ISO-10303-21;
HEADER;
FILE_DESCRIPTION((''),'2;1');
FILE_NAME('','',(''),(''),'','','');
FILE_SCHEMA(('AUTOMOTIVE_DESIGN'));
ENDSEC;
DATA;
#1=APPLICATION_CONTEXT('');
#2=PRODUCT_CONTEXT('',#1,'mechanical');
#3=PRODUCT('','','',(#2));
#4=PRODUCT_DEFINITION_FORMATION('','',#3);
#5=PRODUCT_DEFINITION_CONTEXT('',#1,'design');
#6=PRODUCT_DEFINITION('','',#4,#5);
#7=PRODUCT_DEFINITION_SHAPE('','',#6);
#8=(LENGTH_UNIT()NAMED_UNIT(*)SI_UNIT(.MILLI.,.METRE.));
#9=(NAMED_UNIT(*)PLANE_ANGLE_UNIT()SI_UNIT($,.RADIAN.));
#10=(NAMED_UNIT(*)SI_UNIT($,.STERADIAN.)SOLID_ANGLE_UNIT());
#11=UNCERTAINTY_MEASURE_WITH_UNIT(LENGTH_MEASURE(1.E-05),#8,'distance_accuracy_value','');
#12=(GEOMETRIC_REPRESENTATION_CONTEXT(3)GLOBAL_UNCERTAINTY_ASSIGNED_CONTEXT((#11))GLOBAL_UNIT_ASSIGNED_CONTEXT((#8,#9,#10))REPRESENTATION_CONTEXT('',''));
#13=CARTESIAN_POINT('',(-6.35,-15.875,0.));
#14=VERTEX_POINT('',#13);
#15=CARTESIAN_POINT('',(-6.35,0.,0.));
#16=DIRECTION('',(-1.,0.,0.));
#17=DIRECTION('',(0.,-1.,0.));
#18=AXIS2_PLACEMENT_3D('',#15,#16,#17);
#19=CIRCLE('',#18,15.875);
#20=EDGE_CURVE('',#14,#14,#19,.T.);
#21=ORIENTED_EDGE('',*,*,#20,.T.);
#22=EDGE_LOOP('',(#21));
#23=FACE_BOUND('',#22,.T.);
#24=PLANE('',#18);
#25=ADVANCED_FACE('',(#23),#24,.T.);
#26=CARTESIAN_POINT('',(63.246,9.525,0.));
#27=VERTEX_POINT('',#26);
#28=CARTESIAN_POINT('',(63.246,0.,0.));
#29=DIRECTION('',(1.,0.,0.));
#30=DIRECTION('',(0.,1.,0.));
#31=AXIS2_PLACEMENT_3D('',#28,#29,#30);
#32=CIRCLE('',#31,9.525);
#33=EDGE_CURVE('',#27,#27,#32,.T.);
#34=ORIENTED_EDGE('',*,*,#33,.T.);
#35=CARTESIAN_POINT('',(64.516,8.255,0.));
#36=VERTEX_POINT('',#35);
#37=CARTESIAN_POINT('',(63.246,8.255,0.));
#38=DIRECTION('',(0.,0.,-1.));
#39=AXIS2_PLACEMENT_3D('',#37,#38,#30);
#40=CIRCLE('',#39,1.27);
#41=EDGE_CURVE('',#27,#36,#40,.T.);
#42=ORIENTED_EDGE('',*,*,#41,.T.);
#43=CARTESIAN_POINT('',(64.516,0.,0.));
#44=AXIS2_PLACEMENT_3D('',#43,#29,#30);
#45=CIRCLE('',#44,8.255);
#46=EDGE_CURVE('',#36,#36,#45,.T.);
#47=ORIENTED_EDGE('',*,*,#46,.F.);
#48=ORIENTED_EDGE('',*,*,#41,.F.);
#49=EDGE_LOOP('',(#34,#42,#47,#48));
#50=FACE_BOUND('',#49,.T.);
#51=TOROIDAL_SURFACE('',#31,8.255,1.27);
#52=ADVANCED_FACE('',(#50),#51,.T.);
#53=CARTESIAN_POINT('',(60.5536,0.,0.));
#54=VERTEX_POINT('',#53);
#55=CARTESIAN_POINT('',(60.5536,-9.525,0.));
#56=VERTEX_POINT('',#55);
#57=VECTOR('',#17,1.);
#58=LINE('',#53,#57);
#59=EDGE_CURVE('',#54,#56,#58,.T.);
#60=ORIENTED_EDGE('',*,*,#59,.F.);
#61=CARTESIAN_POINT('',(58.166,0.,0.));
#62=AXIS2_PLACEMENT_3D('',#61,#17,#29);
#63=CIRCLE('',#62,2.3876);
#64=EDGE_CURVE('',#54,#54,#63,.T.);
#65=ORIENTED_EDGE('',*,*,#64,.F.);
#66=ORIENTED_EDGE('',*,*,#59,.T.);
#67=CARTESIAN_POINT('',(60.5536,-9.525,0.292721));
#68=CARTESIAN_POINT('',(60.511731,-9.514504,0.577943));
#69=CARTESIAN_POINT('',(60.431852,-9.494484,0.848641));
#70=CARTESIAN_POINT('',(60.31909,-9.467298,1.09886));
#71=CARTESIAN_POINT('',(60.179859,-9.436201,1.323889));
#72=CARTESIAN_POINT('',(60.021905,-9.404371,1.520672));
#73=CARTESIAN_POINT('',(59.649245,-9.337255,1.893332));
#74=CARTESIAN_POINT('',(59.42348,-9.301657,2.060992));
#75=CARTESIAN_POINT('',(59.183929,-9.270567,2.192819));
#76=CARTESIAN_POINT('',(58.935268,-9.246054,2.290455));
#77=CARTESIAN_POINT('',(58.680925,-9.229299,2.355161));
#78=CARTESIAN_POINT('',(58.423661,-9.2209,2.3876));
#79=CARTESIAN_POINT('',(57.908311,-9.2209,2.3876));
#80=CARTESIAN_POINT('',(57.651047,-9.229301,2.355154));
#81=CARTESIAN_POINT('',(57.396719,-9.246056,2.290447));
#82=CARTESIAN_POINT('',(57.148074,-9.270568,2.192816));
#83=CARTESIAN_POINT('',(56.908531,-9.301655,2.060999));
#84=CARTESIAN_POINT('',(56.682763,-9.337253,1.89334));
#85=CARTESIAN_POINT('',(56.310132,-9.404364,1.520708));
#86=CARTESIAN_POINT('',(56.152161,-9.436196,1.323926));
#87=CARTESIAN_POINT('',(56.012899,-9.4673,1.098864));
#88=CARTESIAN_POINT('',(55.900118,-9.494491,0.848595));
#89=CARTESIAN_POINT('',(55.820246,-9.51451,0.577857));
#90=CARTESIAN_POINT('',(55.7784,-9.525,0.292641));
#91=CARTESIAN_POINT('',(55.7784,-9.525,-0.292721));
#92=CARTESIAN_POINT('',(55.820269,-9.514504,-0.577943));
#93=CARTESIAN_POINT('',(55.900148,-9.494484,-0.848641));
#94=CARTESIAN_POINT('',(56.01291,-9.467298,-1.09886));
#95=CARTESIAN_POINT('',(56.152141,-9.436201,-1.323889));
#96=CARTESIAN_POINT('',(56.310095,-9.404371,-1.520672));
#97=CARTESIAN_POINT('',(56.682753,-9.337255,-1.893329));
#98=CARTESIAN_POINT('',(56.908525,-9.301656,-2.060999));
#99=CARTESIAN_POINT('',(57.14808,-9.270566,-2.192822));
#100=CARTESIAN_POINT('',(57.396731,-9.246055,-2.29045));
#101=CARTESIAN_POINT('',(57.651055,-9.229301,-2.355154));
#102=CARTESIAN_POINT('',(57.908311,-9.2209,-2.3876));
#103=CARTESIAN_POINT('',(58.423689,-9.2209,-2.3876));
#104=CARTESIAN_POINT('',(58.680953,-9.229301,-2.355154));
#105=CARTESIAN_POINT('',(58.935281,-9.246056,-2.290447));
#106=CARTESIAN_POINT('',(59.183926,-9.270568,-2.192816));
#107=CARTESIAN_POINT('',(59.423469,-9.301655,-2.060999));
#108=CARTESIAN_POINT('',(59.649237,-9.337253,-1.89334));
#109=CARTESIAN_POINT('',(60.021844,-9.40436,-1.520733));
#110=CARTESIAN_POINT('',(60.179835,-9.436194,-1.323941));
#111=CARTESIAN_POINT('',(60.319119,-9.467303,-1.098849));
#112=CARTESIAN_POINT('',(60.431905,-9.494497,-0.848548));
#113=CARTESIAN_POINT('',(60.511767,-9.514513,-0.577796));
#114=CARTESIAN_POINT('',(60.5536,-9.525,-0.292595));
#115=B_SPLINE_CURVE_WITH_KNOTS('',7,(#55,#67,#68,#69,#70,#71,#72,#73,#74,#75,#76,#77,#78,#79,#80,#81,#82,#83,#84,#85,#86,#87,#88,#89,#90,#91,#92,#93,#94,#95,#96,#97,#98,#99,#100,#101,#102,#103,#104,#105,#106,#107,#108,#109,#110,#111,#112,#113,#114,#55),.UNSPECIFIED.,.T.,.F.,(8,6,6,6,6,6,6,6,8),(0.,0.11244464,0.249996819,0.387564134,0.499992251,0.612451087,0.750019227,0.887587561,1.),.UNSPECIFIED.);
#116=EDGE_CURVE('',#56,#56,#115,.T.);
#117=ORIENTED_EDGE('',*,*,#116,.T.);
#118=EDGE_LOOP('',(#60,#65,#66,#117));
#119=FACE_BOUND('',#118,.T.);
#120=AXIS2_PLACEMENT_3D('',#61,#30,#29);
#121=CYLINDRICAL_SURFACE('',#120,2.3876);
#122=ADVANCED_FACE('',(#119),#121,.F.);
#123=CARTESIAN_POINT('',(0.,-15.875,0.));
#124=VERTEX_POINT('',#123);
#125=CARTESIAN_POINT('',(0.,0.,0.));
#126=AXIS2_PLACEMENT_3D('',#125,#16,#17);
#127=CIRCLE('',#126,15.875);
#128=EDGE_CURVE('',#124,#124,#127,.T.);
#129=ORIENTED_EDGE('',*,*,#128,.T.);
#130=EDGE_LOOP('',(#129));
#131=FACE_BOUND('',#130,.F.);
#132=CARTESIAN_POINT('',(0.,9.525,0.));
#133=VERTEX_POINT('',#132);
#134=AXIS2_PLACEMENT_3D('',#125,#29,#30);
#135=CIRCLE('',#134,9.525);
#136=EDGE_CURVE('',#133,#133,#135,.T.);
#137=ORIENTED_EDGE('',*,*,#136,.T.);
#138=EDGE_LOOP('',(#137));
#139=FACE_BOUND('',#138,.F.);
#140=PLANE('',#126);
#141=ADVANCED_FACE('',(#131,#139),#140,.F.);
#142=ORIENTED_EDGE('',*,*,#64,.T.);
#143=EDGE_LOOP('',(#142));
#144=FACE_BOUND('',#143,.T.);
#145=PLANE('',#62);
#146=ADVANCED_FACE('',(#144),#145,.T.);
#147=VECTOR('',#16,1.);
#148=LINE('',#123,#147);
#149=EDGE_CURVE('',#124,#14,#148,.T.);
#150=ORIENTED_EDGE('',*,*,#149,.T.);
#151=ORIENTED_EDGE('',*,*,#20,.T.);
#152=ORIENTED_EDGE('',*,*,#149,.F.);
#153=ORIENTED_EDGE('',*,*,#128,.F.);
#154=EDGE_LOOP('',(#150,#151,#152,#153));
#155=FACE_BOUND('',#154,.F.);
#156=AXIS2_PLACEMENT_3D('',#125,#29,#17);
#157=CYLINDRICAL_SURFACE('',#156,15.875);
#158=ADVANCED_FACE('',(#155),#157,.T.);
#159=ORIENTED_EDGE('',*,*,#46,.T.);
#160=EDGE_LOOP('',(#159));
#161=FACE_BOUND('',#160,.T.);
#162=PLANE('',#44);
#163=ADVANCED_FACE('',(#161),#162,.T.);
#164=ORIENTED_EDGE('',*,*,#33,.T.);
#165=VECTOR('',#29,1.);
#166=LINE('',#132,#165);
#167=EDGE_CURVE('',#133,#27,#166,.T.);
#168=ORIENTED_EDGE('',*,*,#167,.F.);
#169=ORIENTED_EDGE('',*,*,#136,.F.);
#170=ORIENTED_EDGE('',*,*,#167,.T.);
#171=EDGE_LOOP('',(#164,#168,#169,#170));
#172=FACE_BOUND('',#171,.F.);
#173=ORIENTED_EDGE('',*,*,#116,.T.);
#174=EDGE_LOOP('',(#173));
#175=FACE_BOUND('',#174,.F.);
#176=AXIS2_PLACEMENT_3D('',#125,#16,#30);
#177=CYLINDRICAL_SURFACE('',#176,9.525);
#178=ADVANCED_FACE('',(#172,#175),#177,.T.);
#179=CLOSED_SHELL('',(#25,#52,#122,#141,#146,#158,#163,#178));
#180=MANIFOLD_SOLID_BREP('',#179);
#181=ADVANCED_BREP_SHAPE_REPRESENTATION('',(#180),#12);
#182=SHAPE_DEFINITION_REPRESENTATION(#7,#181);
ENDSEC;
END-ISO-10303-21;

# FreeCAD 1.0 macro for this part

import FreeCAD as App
import Part
import Sketcher
from FreeCAD import Vector
Q = App.Units.Quantity


def edges_at(feature, points):
    """Names of the edges that pass closest to the given points."""
    edges = feature.Shape.Edges
    near = lambda p: min(range(len(edges)), key=lambda i: edges[i].distToShape(Part.Vertex(*p))[0])
    return sorted({f"Edge{near(p) + 1}" for p in points})

doc = App.newDocument("Part")
body = doc.addObject("PartDesign::Body", "Body")

# Sketch on YZ plane
sketch1 = body.newObject("Sketcher::SketchObject", "Sketch")
sketch1.AttachmentSupport = (doc.getObject("YZ_Plane"), [""])
sketch1.MapMode = "FlatFace"
sketch1.addGeometry(Part.Circle(Vector(0, 0, 0), Vector(0, 0, 1), 10), False)
sketch1.addConstraint(Sketcher.Constraint("Coincident", 0, 3, -1, 1))
sketch1.addConstraint(Sketcher.Constraint("Diameter", 0, Q("0.75 in")))
pad1 = body.newObject("PartDesign::Pad", "Pad")
pad1.Profile = sketch1
pad1.Length = Q("2.54 in")

# Sketch on YZ plane
sketch2 = body.newObject("Sketcher::SketchObject", "Sketch001")
sketch2.AttachmentSupport = (doc.getObject("YZ_Plane"), [""])
sketch2.MapMode = "FlatFace"
sketch2.addGeometry(Part.Circle(Vector(0, 0, 0), Vector(0, 0, 1), 16), False)
sketch2.addConstraint(Sketcher.Constraint("Coincident", 0, 3, -1, 1))
sketch2.addConstraint(Sketcher.Constraint("Diameter", 0, Q("1.25 in")))
pad2 = body.newObject("PartDesign::Pad", "Pad001")
pad2.Profile = sketch2
pad2.Length = Q("0.25 in")
pad2.Reversed = True

# Sketch on XZ plane
sketch3 = body.newObject("Sketcher::SketchObject", "Sketch002")
sketch3.AttachmentSupport = (doc.getObject("XZ_Plane"), [""])
sketch3.MapMode = "FlatFace"
sketch3.addGeometry(Part.Circle(Vector(58.2, 0, 0), Vector(0, 0, 1), 2.4), False)
sketch3.addConstraint(Sketcher.Constraint("PointOnObject", 0, 3, -1))
sketch3.addConstraint(Sketcher.Constraint("Diameter", 0, Q("0.188 in")))
sketch3.addConstraint(Sketcher.Constraint("DistanceX", -1, 1, 0, 3, Q("2.29 in")))
pocket1 = body.newObject("PartDesign::Pocket", "Pocket")
pocket1.Profile = sketch3
pocket1.Type = "ThroughAll"
pocket1.Reversed = True
doc.recompute()

fillet = body.newObject("PartDesign::Fillet", "Fillet")
fillet.Base = (pocket1, edges_at(pocket1, [(64.516, -9.525, 0)]))
fillet.Radius = Q("0.05 in")

doc.recompute()
